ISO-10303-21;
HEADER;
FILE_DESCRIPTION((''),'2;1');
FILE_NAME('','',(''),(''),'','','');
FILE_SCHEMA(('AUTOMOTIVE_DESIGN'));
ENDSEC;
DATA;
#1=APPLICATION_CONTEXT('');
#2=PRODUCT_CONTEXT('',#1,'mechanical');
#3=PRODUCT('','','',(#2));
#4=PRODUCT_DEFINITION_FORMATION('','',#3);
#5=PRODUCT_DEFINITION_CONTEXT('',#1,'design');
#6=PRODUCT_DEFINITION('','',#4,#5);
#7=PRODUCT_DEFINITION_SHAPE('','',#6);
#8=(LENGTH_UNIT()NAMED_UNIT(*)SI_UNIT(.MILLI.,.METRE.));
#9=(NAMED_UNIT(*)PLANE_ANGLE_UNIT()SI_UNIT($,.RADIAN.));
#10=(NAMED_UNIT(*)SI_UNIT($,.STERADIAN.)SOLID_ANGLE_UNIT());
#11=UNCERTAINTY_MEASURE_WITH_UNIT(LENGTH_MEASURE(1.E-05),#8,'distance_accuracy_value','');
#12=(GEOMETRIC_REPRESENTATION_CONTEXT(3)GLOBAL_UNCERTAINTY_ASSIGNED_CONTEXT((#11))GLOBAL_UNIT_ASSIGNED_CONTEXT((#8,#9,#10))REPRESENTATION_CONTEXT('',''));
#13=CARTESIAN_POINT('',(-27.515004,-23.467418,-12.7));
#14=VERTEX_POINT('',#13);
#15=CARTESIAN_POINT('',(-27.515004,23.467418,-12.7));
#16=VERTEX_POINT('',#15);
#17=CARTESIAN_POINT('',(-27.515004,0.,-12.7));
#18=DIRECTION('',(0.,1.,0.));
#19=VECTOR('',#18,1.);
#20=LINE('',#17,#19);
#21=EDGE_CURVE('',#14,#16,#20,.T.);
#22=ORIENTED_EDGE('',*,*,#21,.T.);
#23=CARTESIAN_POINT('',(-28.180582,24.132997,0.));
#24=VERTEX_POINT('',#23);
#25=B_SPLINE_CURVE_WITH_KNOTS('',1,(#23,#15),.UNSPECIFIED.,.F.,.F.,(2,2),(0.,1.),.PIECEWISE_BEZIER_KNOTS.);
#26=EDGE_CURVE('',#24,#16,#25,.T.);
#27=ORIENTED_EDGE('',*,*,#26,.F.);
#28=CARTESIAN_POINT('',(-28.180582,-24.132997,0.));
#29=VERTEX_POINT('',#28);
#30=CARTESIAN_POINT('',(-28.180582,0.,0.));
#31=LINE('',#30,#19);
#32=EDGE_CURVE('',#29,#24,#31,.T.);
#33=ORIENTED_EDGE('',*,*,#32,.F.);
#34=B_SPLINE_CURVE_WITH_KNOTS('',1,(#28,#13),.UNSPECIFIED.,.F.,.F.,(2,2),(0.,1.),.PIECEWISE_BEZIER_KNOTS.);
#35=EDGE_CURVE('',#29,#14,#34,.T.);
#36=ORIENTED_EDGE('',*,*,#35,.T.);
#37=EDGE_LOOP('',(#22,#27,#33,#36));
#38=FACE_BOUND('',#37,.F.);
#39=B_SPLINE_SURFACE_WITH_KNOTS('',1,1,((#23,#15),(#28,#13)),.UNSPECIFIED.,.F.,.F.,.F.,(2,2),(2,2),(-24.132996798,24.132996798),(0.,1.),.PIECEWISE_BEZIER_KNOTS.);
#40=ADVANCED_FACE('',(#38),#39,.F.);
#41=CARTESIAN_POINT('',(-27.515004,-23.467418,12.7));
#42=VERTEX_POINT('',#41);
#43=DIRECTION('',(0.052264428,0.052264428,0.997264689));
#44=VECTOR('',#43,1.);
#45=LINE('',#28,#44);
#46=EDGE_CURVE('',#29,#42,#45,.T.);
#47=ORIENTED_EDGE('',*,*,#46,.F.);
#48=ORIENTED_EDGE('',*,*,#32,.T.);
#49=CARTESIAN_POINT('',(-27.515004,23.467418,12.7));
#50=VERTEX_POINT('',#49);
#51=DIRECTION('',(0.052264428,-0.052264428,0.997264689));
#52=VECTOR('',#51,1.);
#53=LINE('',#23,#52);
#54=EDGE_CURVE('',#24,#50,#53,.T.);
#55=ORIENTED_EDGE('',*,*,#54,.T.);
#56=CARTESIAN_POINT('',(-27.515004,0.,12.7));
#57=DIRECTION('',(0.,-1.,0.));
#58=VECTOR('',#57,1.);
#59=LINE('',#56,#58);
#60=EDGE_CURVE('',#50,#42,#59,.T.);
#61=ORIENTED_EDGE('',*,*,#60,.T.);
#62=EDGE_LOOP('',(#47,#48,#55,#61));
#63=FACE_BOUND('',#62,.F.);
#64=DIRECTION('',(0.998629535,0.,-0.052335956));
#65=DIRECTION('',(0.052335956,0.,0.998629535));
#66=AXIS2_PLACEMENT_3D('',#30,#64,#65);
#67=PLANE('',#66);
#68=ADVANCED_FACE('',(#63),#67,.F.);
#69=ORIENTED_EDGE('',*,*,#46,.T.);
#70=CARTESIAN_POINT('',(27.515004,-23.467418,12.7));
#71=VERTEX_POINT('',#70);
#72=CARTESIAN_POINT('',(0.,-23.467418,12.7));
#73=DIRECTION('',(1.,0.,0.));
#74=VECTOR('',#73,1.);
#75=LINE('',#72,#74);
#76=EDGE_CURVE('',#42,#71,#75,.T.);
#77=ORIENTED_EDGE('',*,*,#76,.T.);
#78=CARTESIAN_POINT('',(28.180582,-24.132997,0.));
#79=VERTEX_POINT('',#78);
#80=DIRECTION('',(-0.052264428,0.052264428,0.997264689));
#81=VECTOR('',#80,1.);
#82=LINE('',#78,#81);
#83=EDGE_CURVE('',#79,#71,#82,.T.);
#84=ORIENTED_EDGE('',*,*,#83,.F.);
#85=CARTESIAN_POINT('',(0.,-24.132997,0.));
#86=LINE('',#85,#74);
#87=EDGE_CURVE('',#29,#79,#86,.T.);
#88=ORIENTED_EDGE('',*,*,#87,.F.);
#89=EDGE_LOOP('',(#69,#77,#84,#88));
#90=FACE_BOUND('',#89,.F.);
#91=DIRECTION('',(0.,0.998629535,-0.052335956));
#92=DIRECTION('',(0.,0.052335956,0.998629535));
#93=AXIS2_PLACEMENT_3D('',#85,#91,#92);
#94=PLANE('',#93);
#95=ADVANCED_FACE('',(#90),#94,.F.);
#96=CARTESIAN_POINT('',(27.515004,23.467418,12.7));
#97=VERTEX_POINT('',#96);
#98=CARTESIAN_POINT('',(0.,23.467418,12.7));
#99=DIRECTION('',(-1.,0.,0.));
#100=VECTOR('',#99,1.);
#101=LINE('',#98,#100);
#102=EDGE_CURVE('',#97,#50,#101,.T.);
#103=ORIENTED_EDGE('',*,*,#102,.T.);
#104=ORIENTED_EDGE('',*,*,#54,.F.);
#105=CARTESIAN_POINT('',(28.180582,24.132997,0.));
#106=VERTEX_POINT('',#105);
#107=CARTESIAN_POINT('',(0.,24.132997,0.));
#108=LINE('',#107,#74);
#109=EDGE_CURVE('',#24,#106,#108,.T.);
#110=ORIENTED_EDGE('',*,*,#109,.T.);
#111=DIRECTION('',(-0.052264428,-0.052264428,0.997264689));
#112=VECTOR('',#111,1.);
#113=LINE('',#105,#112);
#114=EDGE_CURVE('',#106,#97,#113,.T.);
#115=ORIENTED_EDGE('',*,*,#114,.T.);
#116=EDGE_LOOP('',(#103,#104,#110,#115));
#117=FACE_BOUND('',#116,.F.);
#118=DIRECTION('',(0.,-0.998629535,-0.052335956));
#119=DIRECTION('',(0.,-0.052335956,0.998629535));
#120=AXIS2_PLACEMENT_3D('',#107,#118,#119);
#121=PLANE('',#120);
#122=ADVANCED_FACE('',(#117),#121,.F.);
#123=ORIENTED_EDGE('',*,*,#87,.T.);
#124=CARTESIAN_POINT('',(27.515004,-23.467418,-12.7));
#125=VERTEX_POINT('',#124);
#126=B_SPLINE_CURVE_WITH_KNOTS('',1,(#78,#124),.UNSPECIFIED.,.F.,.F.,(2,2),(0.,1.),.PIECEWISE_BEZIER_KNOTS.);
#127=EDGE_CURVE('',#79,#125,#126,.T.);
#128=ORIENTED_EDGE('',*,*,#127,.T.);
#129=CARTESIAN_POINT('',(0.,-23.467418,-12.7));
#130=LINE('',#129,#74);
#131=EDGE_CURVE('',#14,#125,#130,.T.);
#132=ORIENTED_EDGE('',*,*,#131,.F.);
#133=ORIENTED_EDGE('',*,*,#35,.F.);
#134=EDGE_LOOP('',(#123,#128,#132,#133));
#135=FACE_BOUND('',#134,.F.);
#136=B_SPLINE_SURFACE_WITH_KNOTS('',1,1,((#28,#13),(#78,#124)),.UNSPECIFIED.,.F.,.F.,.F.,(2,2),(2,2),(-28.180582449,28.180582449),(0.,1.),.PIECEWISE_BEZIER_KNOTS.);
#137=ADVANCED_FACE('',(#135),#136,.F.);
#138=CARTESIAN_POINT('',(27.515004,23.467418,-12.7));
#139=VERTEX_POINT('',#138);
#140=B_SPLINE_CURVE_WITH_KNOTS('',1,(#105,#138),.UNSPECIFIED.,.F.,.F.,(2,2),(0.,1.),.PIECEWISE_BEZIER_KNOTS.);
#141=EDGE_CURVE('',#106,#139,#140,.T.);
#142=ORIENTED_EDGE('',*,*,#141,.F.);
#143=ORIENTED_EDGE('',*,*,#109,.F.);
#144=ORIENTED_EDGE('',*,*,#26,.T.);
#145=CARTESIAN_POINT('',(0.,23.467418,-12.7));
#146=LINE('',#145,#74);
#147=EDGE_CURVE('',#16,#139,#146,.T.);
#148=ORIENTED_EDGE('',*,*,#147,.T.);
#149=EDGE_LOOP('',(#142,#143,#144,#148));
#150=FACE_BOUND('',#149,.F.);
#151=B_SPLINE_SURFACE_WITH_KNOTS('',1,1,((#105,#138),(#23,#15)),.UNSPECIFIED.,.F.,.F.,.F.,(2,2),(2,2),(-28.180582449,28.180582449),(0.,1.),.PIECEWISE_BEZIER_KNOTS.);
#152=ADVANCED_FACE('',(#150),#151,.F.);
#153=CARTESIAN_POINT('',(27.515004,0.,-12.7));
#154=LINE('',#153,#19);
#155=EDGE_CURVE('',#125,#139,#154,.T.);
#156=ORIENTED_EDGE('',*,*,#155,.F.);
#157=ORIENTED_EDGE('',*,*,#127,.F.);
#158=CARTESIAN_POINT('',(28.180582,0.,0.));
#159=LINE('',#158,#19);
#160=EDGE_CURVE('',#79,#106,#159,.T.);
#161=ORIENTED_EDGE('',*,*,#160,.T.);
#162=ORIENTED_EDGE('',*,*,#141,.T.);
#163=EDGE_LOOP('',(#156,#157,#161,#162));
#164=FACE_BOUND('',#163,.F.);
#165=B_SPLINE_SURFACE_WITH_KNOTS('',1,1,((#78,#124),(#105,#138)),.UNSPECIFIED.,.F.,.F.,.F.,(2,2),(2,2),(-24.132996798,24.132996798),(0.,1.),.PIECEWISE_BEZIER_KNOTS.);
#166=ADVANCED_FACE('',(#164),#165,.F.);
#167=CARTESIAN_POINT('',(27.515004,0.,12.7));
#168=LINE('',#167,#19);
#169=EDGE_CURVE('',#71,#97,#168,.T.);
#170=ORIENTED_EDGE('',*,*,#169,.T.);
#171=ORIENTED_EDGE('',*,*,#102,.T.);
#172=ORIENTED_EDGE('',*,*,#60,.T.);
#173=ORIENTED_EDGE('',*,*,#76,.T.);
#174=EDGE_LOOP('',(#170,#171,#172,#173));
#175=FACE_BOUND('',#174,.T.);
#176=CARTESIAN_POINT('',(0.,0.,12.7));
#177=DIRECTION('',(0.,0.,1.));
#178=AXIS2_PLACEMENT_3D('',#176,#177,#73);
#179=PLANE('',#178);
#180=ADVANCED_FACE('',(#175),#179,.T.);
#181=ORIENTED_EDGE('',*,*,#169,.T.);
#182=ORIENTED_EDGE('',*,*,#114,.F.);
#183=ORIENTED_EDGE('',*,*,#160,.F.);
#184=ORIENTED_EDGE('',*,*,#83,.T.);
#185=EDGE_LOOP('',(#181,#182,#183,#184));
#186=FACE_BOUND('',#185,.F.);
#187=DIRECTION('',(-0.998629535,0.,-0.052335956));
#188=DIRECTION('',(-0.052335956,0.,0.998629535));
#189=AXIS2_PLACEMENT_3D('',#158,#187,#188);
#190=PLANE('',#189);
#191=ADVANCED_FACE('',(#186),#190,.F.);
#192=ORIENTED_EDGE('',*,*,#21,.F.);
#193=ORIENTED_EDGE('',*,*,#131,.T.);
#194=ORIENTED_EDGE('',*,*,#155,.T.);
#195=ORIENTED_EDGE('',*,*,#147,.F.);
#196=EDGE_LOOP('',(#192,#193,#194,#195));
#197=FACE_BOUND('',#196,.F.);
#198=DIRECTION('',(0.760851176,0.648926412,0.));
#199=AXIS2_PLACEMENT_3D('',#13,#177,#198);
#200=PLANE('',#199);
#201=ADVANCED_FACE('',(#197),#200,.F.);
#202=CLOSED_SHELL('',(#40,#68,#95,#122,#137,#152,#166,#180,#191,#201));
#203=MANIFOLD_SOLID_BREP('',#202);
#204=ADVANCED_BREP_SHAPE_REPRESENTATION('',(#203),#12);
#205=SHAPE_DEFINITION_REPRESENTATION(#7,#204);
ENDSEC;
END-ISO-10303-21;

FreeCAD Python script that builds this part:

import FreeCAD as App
import Part
import Sketcher
from FreeCAD import Vector
Q = App.Units.Quantity

doc = App.newDocument("Part")
body = doc.addObject("PartDesign::Body", "Body")

# Sketch on XY plane
sketch1 = doc.addObject("Sketcher::SketchObject", "Sketch")
body.addObject(sketch1)
sketch1.AttachmentSupport = (doc.XY_Plane, [""])
sketch1.MapMode = "FlatFace"
sketch1.addGeometry([
    Part.LineSegment(Vector(-28, 24, 0), Vector(-28, -24, 0)),
    Part.LineSegment(Vector(-28, -24, 0), Vector(28, -24, 0)),
    Part.LineSegment(Vector(28, -24, 0), Vector(28, 24, 0)),
    Part.LineSegment(Vector(28, 24, 0), Vector(-28, 24, 0)),
], False)
sketch1.addConstraint([
    Sketcher.Constraint("Coincident", 0, 2, 1, 1),
    Sketcher.Constraint("Coincident", 1, 2, 2, 1),
    Sketcher.Constraint("Coincident", 2, 2, 3, 1),
    Sketcher.Constraint("Coincident", 3, 2, 0, 1),
    Sketcher.Constraint("Vertical", 0),
    Sketcher.Constraint("Horizontal", 1),
    Sketcher.Constraint("Vertical", 2),
    Sketcher.Constraint("Horizontal", 3),
    Sketcher.Constraint("Symmetric", 0, 2, 2, 2, -1, 1),
    Sketcher.Constraint("DistanceX", 1, 1, 1, 2, 56.361165),
    Sketcher.Constraint("DistanceY", 0, 2, 0, 1, 48.265994),
])
pad1 = doc.addObject("PartDesign::Pad", "Pad")
body.addObject(pad1)
pad1.Profile = sketch1
pad1.Length = Q("1 in")
pad1.Midplane = True
pad1.TaperAngle = -3

doc.recompute()
